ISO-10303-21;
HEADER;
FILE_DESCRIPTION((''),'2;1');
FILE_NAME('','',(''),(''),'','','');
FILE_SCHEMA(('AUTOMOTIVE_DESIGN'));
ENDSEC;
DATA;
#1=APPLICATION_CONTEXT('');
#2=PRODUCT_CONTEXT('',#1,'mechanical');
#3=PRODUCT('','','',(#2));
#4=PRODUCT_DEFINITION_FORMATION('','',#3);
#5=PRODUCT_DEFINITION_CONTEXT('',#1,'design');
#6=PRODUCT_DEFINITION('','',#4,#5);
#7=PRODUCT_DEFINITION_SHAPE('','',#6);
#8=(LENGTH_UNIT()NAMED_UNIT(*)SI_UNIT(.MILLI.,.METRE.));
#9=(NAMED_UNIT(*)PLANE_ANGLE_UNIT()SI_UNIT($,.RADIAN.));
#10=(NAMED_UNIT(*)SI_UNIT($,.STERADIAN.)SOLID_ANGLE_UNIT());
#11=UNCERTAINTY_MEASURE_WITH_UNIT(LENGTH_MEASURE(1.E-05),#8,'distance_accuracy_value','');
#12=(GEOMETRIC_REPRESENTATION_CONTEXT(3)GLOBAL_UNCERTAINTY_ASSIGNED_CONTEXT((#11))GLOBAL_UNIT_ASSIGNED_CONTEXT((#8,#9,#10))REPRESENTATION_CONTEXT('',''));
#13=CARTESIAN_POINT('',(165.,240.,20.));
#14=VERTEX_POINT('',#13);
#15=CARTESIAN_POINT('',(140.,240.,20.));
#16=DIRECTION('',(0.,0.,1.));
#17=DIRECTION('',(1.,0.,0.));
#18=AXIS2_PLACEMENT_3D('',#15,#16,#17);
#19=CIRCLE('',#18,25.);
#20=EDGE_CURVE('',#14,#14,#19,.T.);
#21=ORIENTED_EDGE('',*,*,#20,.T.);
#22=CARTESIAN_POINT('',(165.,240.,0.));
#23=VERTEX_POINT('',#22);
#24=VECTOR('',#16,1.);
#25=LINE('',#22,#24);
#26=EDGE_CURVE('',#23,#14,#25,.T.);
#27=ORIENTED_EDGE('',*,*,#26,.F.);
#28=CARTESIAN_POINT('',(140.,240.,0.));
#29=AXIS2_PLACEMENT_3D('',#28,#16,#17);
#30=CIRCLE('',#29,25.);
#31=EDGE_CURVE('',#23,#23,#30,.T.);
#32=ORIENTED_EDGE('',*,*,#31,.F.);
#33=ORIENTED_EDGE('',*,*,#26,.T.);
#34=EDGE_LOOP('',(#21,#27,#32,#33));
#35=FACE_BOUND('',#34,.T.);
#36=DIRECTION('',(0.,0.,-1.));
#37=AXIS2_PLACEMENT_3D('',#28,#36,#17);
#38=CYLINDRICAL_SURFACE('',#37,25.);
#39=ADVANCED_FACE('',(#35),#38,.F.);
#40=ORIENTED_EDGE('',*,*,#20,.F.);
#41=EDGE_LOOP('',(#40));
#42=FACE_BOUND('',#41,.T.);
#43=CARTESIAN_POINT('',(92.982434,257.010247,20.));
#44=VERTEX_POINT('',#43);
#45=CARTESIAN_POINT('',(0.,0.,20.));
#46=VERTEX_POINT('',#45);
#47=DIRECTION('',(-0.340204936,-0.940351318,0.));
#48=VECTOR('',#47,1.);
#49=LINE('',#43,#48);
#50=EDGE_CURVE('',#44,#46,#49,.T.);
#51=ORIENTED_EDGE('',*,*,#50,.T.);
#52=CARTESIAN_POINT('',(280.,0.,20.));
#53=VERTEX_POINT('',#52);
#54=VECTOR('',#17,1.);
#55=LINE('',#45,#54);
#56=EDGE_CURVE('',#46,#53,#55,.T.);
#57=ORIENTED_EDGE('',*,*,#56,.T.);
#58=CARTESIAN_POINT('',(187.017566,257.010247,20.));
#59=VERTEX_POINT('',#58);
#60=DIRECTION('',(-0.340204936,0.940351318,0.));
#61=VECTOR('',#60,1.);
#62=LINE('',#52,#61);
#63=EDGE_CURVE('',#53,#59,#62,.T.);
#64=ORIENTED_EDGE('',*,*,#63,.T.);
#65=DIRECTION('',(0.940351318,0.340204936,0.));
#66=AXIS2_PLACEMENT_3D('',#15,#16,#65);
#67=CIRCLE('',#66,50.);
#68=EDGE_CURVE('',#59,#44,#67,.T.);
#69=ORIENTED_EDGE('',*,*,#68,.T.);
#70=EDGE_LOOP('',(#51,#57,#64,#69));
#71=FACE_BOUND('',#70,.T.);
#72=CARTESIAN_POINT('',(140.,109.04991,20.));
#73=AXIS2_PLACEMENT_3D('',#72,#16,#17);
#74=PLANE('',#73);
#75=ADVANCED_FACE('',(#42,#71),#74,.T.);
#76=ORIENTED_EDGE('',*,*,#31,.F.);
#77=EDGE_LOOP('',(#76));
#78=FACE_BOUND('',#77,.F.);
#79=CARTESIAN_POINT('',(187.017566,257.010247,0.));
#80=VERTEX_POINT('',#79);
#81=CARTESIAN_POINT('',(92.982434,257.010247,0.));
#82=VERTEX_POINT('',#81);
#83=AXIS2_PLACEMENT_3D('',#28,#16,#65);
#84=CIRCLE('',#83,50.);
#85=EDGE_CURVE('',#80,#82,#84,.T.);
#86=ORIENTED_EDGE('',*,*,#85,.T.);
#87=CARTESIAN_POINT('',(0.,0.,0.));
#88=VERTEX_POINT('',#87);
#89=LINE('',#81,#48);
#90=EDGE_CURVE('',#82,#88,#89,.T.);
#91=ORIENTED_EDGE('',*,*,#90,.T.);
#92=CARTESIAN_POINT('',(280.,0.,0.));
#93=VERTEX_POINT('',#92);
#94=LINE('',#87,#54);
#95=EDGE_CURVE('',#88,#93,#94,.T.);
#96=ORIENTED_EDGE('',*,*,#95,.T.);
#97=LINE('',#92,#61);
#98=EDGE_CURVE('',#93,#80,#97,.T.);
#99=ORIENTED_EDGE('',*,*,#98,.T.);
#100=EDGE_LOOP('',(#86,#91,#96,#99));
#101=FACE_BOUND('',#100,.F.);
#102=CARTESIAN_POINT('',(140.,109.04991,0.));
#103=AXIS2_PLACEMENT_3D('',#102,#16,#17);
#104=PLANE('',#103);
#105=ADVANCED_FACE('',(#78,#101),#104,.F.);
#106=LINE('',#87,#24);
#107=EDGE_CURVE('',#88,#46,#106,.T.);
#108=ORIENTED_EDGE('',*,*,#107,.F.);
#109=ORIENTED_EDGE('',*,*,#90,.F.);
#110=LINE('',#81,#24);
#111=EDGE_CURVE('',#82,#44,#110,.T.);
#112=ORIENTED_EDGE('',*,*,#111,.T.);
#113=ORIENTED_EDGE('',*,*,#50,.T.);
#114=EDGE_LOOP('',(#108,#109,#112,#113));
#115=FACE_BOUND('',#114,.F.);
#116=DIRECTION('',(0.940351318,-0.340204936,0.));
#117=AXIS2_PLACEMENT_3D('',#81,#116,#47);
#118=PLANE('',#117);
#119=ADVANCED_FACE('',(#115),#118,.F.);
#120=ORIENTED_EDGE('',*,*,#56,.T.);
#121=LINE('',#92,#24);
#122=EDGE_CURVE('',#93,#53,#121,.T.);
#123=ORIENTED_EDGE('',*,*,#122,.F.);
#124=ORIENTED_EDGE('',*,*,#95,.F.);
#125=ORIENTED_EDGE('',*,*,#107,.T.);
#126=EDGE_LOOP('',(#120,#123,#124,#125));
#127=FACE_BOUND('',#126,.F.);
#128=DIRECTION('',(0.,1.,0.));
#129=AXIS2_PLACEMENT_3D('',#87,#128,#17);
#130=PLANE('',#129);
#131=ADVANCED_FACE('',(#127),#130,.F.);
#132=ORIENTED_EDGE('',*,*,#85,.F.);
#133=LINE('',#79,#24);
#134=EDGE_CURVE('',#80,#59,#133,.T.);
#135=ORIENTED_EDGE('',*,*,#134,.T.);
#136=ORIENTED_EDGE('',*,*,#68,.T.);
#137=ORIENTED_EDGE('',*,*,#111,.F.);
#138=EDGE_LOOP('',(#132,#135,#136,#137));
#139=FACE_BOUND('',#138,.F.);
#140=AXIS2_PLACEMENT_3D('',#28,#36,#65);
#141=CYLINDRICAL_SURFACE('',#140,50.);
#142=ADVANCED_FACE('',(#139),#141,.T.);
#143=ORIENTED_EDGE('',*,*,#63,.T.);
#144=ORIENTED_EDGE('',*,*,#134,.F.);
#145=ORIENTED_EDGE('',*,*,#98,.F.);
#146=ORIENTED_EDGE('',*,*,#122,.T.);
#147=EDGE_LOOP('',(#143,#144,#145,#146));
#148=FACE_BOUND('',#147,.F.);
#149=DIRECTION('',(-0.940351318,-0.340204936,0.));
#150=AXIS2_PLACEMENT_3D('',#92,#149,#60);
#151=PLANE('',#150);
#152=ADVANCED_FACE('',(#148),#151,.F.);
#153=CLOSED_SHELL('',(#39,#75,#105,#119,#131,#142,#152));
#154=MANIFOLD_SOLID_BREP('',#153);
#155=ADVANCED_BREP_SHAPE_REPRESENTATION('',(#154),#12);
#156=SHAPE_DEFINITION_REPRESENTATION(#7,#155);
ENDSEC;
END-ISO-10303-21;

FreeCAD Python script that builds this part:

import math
import FreeCAD as App
import Part
import Sketcher

doc = App.newDocument("Part")
body = doc.addObject("PartDesign::Body", "Body")

sketch1 = doc.addObject("Sketcher::SketchObject", "Sketch")
body.addObject(sketch1)
sketch1.AttachmentSupport = (doc.XY_Plane, [""])
sketch1.MapMode = "FlatFace"
sketch1.addGeometry(Part.LineSegment(App.Vector(0, 0, 0), App.Vector(280, 0, 0)), False)
sketch1.addGeometry(Part.LineSegment(App.Vector(280, 0, 0), App.Vector(187, 257, 0)), False)
sketch1.addGeometry(Part.ArcOfCircle(Part.Circle(App.Vector(140, 240, 0), App.Vector(0, 0, 1), 50), math.radians(20), math.radians(160)), False)
sketch1.addGeometry(Part.LineSegment(App.Vector(93, 257, 0), App.Vector(0, 0, 0)), False)
sketch1.addGeometry(Part.Circle(App.Vector(140, 240, 0), App.Vector(0, 0, 1), 25), False)
sketch1.addConstraint(Sketcher.Constraint("Coincident", 0, 2, 1, 1))
sketch1.addConstraint(Sketcher.Constraint("Tangent", 1, 2, 2, 1))
sketch1.addConstraint(Sketcher.Constraint("Tangent", 2, 2, 3, 1))
sketch1.addConstraint(Sketcher.Constraint("Coincident", 3, 2, 0, 1))
sketch1.addConstraint(Sketcher.Constraint("Horizontal", 0))
sketch1.addConstraint(Sketcher.Constraint("Coincident", 3, 2, -1, 1))
sketch1.addConstraint(Sketcher.Constraint("Coincident", 4, 3, 2, 3))
sketch1.addConstraint(Sketcher.Constraint("Horizontal", 1, 2, 2, 2))
sketch1.addConstraint(Sketcher.Constraint("Diameter", 4, 50.0))
sketch1.addConstraint(Sketcher.Constraint("Radius", 2, 50.0))
sketch1.addConstraint(Sketcher.Constraint("DistanceX", 0, 1, 0, 2, 280.0))
sketch1.addConstraint(Sketcher.Constraint("DistanceY", -1, 1, 2, 3, 240.0))
pad1 = doc.addObject("PartDesign::Pad", "Pad")
body.addObject(pad1)
pad1.Profile = sketch1
pad1.Length = 20

doc.recompute()
